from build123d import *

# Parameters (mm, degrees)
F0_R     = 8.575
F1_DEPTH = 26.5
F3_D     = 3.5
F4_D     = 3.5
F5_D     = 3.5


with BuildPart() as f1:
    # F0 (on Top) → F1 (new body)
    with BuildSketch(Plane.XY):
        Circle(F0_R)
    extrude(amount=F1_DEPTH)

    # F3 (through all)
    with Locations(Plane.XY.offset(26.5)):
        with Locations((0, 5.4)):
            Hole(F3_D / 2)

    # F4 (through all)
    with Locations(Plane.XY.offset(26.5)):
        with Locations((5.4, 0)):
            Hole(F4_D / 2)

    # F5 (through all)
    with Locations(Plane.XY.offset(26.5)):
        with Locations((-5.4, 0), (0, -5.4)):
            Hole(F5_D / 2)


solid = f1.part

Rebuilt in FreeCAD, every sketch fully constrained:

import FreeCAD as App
import Part
import Sketcher

V = App.Vector
Q = App.Units.Quantity

doc = App.newDocument("Part")
body = doc.addObject("PartDesign::Body", "Body")

# Sketch on XY plane
sketch1 = body.newObject("Sketcher::SketchObject", "Sketch")
sketch1.AttachmentSupport = (doc.getObject("XY_Plane"), [""])
sketch1.MapMode = "FlatFace"
sketch1.addGeometry(Part.Circle(V(0, 0, 0), V(0, 0, 1), 9), False)
sketch1.addConstraint(Sketcher.Constraint("Coincident", 0, 3, -1, 1))
sketch1.addConstraint(Sketcher.Constraint("Diameter", 0, Q("17.15 mm")))
pad1 = body.newObject("PartDesign::Pad", "Pad")
pad1.Profile = sketch1
pad1.Length = 26.5

# Sketch on XY plane
sketch2 = body.newObject("Sketcher::SketchObject", "Sketch001")
sketch2.AttachmentSupport = (doc.getObject("XY_Plane"), [""])
sketch2.MapMode = "FlatFace"
sketch2.AttachmentOffset = App.Placement(V(0, 0, 26.5), App.Rotation())
sketch2.addGeometry(Part.Circle(V(0, 5.4, 0), V(0, 0, 1), 1.8), False)
sketch2.addConstraint(Sketcher.Constraint("PointOnObject", 0, 3, -2))
sketch2.addConstraint(Sketcher.Constraint("Diameter", 0, Q("3.5 mm")))
sketch2.addConstraint(Sketcher.Constraint("DistanceY", -1, 1, 0, 3, Q("5.4 mm")))
doc.recompute()
hole = body.newObject("PartDesign::Hole", "Hole")
hole.Profile = sketch2
hole.ThreadType = "None"
hole.Diameter = 3.5
hole.DepthType = "ThroughAll"

# Sketch on XY plane
sketch3 = body.newObject("Sketcher::SketchObject", "Sketch002")
sketch3.AttachmentSupport = (doc.getObject("XY_Plane"), [""])
sketch3.MapMode = "FlatFace"
sketch3.AttachmentOffset = App.Placement(V(0, 0, 26.5), App.Rotation())
sketch3.addGeometry(Part.Circle(V(5.4, 0, 0), V(0, 0, 1), 1.8), False)
sketch3.addConstraint(Sketcher.Constraint("PointOnObject", 0, 3, -1))
sketch3.addConstraint(Sketcher.Constraint("Diameter", 0, Q("3.5 mm")))
sketch3.addConstraint(Sketcher.Constraint("DistanceX", -1, 1, 0, 3, Q("5.4 mm")))
doc.recompute()
hole2 = body.newObject("PartDesign::Hole", "Hole001")
hole2.Profile = sketch3
hole2.ThreadType = "None"
hole2.Diameter = 3.5
hole2.DepthType = "ThroughAll"

# Sketch on XY plane
sketch4 = body.newObject("Sketcher::SketchObject", "Sketch003")
sketch4.AttachmentSupport = (doc.getObject("XY_Plane"), [""])
sketch4.MapMode = "FlatFace"
sketch4.AttachmentOffset = App.Placement(V(0, 0, 26.5), App.Rotation())
sketch4.addGeometry(Part.Circle(V(-5.4, 0, 0), V(0, 0, 1), 1.8), False)
sketch4.addGeometry(Part.Circle(V(0, -5.4, 0), V(0, 0, 1), 1.8), False)
sketch4.addConstraint(Sketcher.Constraint("Equal", 0, 1))
sketch4.addConstraint(Sketcher.Constraint("PointOnObject", 0, 3, -1))
sketch4.addConstraint(Sketcher.Constraint("PointOnObject", 1, 3, -2))
sketch4.addConstraint(Sketcher.Constraint("Diameter", 0, Q("3.5 mm")))
sketch4.addConstraint(Sketcher.Constraint("DistanceX", 0, 3, -1, 1, Q("5.4 mm")))
sketch4.addConstraint(Sketcher.Constraint("DistanceY", 1, 3, -1, 1, Q("5.4 mm")))
doc.recompute()
hole3 = body.newObject("PartDesign::Hole", "Hole002")
hole3.Profile = sketch4
hole3.ThreadType = "None"
hole3.Diameter = 3.5
hole3.DepthType = "ThroughAll"

doc.recompute()
